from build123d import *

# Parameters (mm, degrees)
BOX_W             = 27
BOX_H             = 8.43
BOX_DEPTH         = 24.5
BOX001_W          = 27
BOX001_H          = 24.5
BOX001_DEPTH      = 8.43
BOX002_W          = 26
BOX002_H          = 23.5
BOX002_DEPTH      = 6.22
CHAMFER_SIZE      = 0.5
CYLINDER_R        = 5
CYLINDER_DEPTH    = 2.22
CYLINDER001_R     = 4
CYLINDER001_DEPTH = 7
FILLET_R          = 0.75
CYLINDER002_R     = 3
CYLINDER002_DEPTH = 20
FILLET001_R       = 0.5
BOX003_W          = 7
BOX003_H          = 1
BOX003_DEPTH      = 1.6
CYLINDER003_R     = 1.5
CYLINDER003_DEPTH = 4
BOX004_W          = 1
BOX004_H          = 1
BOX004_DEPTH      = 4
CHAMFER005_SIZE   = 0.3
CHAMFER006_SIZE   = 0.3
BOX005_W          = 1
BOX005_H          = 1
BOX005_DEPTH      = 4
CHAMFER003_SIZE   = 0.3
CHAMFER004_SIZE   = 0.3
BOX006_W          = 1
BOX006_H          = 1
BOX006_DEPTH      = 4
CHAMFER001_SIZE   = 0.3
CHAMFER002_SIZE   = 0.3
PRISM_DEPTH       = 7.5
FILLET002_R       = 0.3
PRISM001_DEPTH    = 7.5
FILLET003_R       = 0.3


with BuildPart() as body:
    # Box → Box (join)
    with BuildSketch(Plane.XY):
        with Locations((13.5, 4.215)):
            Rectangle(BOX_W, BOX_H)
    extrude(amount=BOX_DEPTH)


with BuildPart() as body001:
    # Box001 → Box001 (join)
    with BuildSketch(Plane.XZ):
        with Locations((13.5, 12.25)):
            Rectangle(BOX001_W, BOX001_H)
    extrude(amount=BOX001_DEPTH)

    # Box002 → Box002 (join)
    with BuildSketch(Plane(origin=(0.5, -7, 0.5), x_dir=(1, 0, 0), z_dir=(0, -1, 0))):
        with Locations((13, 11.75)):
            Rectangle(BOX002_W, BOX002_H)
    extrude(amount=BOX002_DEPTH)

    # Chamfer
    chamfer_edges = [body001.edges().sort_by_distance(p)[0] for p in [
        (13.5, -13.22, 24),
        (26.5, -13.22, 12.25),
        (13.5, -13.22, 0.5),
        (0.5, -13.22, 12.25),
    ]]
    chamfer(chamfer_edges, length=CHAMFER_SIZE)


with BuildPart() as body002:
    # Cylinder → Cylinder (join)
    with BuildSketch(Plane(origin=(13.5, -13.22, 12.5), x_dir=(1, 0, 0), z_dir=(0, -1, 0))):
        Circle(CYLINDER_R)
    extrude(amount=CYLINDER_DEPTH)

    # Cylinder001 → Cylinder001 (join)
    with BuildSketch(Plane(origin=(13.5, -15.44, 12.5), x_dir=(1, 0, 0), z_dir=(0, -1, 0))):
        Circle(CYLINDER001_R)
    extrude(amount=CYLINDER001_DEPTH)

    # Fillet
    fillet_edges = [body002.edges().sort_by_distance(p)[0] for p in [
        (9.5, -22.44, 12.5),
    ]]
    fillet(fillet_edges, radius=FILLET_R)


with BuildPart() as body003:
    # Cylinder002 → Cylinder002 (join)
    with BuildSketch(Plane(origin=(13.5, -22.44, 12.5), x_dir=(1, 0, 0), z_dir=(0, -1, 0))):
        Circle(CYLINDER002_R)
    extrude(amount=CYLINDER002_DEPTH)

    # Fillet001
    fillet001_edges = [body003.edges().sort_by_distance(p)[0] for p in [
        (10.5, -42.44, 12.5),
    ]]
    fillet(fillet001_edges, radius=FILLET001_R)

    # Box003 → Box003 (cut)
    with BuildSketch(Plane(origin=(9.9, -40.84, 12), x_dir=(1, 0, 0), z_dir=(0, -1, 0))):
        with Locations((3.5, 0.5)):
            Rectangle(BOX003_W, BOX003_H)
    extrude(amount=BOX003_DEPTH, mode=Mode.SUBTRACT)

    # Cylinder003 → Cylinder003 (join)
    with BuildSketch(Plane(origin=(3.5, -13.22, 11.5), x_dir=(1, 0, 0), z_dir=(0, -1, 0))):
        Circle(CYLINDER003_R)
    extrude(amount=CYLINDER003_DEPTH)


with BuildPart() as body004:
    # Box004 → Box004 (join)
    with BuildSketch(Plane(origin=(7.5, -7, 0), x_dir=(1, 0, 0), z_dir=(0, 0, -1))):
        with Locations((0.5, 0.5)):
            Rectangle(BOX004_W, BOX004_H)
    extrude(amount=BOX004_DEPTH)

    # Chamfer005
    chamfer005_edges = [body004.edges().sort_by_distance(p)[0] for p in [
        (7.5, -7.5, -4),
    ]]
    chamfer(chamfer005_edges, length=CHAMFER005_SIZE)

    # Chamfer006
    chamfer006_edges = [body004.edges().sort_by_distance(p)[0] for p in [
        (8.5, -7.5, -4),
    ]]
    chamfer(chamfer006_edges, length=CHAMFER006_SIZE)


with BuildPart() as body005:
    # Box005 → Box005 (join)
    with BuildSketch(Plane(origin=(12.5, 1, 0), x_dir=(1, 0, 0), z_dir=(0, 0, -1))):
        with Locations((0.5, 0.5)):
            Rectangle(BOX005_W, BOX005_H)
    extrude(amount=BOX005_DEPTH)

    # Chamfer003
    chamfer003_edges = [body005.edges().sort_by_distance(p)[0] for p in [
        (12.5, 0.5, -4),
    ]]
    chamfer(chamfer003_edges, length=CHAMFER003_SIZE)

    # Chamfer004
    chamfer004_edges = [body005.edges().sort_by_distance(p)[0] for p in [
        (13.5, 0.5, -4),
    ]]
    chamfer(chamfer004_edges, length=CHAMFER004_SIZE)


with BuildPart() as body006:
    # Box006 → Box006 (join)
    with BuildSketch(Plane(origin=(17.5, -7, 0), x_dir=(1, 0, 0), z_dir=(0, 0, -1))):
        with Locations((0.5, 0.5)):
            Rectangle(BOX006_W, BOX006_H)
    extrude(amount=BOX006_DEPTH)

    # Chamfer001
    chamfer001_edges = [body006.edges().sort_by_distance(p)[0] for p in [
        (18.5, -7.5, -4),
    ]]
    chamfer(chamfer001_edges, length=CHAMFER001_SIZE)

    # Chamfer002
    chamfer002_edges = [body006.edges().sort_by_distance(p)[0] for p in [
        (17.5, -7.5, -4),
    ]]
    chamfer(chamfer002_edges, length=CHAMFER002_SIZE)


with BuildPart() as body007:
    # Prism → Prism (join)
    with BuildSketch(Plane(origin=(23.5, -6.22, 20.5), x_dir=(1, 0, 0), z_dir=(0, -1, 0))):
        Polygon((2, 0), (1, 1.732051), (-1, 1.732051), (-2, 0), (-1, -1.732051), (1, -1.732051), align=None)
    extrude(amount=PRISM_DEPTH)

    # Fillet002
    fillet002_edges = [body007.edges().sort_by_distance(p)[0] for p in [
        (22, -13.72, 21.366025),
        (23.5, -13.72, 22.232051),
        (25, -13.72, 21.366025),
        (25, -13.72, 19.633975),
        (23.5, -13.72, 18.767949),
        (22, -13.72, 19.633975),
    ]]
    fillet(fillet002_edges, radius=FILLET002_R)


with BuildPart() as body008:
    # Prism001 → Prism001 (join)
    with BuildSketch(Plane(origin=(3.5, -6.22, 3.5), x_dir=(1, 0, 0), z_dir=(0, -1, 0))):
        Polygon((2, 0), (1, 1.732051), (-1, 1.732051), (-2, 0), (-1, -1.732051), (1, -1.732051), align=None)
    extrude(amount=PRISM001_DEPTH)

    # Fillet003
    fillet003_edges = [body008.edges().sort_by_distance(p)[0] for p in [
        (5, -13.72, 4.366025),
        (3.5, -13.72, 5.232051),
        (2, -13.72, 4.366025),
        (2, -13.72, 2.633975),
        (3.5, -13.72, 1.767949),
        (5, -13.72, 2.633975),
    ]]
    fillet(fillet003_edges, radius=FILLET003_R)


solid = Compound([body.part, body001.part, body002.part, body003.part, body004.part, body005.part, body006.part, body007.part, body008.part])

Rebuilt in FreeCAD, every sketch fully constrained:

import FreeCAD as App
import Part
import Sketcher
Q = App.Units.Quantity


def edges_at(feature, points):
    """Names of the edges that pass closest to the given points."""
    edges = feature.Shape.Edges
    near = lambda p: min(range(len(edges)), key=lambda i: edges[i].distToShape(Part.Vertex(*p))[0])
    return sorted({f"Edge{near(p) + 1}" for p in points})

doc = App.newDocument("Part")
body = doc.addObject("PartDesign::Body", "Body")

# Sketch on XY plane
sketch1 = doc.addObject("Sketcher::SketchObject", "Sketch")
body.addObject(sketch1)
sketch1.AttachmentSupport = (doc.XY_Plane, [""])
sketch1.MapMode = "FlatFace"
sketch1.addGeometry([
    Part.LineSegment(App.Vector(0, 8.43, 0), App.Vector(0, 0, 0)),
    Part.LineSegment(App.Vector(0, 0, 0), App.Vector(27, 0, 0)),
    Part.LineSegment(App.Vector(27, 0, 0), App.Vector(27, 8.43, 0)),
    Part.LineSegment(App.Vector(27, 8.43, 0), App.Vector(0, 8.43, 0)),
], False)
sketch1.addConstraint([
    Sketcher.Constraint("Coincident", 0, 2, 1, 1),
    Sketcher.Constraint("Coincident", 1, 2, 2, 1),
    Sketcher.Constraint("Coincident", 2, 2, 3, 1),
    Sketcher.Constraint("Coincident", 3, 2, 0, 1),
    Sketcher.Constraint("Vertical", 0),
    Sketcher.Constraint("Horizontal", 1),
    Sketcher.Constraint("Vertical", 2),
    Sketcher.Constraint("Horizontal", 3),
    Sketcher.Constraint("Coincident", 0, 2, -1, 1),
    Sketcher.Constraint("DistanceX", 1, 1, 1, 2, 27.0),
    Sketcher.Constraint("DistanceY", 0, 2, 0, 1, 8.43),
])
pad1 = doc.addObject("PartDesign::Pad", "Pad")
body.addObject(pad1)
pad1.Profile = sketch1
pad1.Length = 24.5
body2 = doc.addObject("PartDesign::Body", "Body001")

# Sketch on XZ plane
sketch2 = doc.addObject("Sketcher::SketchObject", "Sketch001")
body2.addObject(sketch2)
sketch2.AttachmentSupport = (doc.getObject("XZ_Plane001"), [""])
sketch2.MapMode = "FlatFace"
sketch2.addGeometry([
    Part.LineSegment(App.Vector(0, 24.5, 0), App.Vector(0, 0, 0)),
    Part.LineSegment(App.Vector(0, 0, 0), App.Vector(27, 0, 0)),
    Part.LineSegment(App.Vector(27, 0, 0), App.Vector(27, 24.5, 0)),
    Part.LineSegment(App.Vector(27, 24.5, 0), App.Vector(0, 24.5, 0)),
], False)
sketch2.addConstraint([
    Sketcher.Constraint("Coincident", 0, 2, 1, 1),
    Sketcher.Constraint("Coincident", 1, 2, 2, 1),
    Sketcher.Constraint("Coincident", 2, 2, 3, 1),
    Sketcher.Constraint("Coincident", 3, 2, 0, 1),
    Sketcher.Constraint("Vertical", 0),
    Sketcher.Constraint("Horizontal", 1),
    Sketcher.Constraint("Vertical", 2),
    Sketcher.Constraint("Horizontal", 3),
    Sketcher.Constraint("Coincident", 0, 2, -1, 1),
    Sketcher.Constraint("DistanceX", 1, 1, 1, 2, 27.0),
    Sketcher.Constraint("DistanceY", 0, 2, 0, 1, 24.5),
])
pad2 = doc.addObject("PartDesign::Pad", "Pad001")
body2.addObject(pad2)
pad2.Profile = sketch2
pad2.Length = 8.43

# Sketch on XZ plane
sketch3 = doc.addObject("Sketcher::SketchObject", "Sketch002")
body2.addObject(sketch3)
sketch3.AttachmentSupport = (doc.getObject("XZ_Plane001"), [""])
sketch3.MapMode = "FlatFace"
sketch3.AttachmentOffset = App.Placement(App.Vector(0, 0, 7), App.Rotation())
sketch3.addGeometry([
    Part.LineSegment(App.Vector(0.5, 24, 0), App.Vector(0.5, 0.5, 0)),
    Part.LineSegment(App.Vector(0.5, 0.5, 0), App.Vector(26.5, 0.5, 0)),
    Part.LineSegment(App.Vector(26.5, 0.5, 0), App.Vector(26.5, 24, 0)),
    Part.LineSegment(App.Vector(26.5, 24, 0), App.Vector(0.5, 24, 0)),
], False)
sketch3.addConstraint([
    Sketcher.Constraint("Coincident", 0, 2, 1, 1),
    Sketcher.Constraint("Coincident", 1, 2, 2, 1),
    Sketcher.Constraint("Coincident", 2, 2, 3, 1),
    Sketcher.Constraint("Coincident", 3, 2, 0, 1),
    Sketcher.Constraint("Vertical", 0),
    Sketcher.Constraint("Horizontal", 1),
    Sketcher.Constraint("Vertical", 2),
    Sketcher.Constraint("Horizontal", 3),
    Sketcher.Constraint("DistanceX", 1, 1, 1, 2, 26.0),
    Sketcher.Constraint("DistanceY", 0, 2, 0, 1, 23.5),
    Sketcher.Constraint("DistanceY", -1, 1, 2, 2, 24.0),
    Sketcher.Constraint("DistanceX", -1, 1, 0, 2, 0.5),
])
pad3 = doc.addObject("PartDesign::Pad", "Pad002")
body2.addObject(pad3)
pad3.Profile = sketch3
pad3.Length = 6.22
doc.recompute()

chamfer = doc.addObject("PartDesign::Chamfer", "Chamfer")
body2.addObject(chamfer)
chamfer.Base = (pad3, edges_at(pad3, [
    (13.5, -13.22, 24),
    (26.5, -13.22, 12.25),
    (13.5, -13.22, 0.5),
    (0.5, -13.22, 12.25),
]))
chamfer.Size = 0.5
body3 = doc.addObject("PartDesign::Body", "Body002")

# Sketch on XZ plane
sketch4 = doc.addObject("Sketcher::SketchObject", "Sketch003")
body3.addObject(sketch4)
sketch4.AttachmentSupport = (doc.getObject("XZ_Plane002"), [""])
sketch4.MapMode = "FlatFace"
sketch4.AttachmentOffset = App.Placement(App.Vector(0, 0, 13.22), App.Rotation())
sketch4.addGeometry(Part.Circle(App.Vector(13.5, 12.5, 0), App.Vector(0, 0, 1), 5), False)
sketch4.addConstraint([
    Sketcher.Constraint("Diameter", 0, 10.0),
    Sketcher.Constraint("DistanceX", -1, 1, 0, 3, 13.5),
    Sketcher.Constraint("DistanceY", -1, 1, 0, 3, 12.5),
])
pad4 = doc.addObject("PartDesign::Pad", "Pad003")
body3.addObject(pad4)
pad4.Profile = sketch4
pad4.Length = 2.22

# Sketch on XZ plane
sketch5 = doc.addObject("Sketcher::SketchObject", "Sketch004")
body3.addObject(sketch5)
sketch5.AttachmentSupport = (doc.getObject("XZ_Plane002"), [""])
sketch5.MapMode = "FlatFace"
sketch5.AttachmentOffset = App.Placement(App.Vector(0, 0, 15.44), App.Rotation())
sketch5.addGeometry(Part.Circle(App.Vector(13.5, 12.5, 0), App.Vector(0, 0, 1), 4), False)
sketch5.addConstraint([
    Sketcher.Constraint("Diameter", 0, 8.0),
    Sketcher.Constraint("DistanceX", -1, 1, 0, 3, 13.5),
    Sketcher.Constraint("DistanceY", -1, 1, 0, 3, 12.5),
])
pad5 = doc.addObject("PartDesign::Pad", "Pad004")
body3.addObject(pad5)
pad5.Profile = sketch5
pad5.Length = 7
doc.recompute()

fillet = doc.addObject("PartDesign::Fillet", "Fillet")
body3.addObject(fillet)
fillet.Base = (pad5, edges_at(pad5, [(9.5, -22.44, 12.5)]))
fillet.Radius = 0.75
body4 = doc.addObject("PartDesign::Body", "Body003")
body4.AllowCompound = True

# Sketch on XZ plane
sketch6 = doc.addObject("Sketcher::SketchObject", "Sketch005")
body4.addObject(sketch6)
sketch6.AttachmentSupport = (doc.getObject("XZ_Plane003"), [""])
sketch6.MapMode = "FlatFace"
sketch6.AttachmentOffset = App.Placement(App.Vector(0, 0, 22.44), App.Rotation())
sketch6.addGeometry(Part.Circle(App.Vector(13.5, 12.5, 0), App.Vector(0, 0, 1), 3), False)
sketch6.addConstraint([
    Sketcher.Constraint("Diameter", 0, 6.0),
    Sketcher.Constraint("DistanceX", -1, 1, 0, 3, 13.5),
    Sketcher.Constraint("DistanceY", -1, 1, 0, 3, 12.5),
])
pad6 = doc.addObject("PartDesign::Pad", "Pad005")
body4.addObject(pad6)
pad6.Profile = sketch6
pad6.Length = 20
doc.recompute()

fillet2 = doc.addObject("PartDesign::Fillet", "Fillet001")
body4.addObject(fillet2)
fillet2.Base = (pad6, edges_at(pad6, [(10.5, -42.44, 12.5)]))
fillet2.Radius = 0.5

# Sketch on XZ plane
sketch7 = doc.addObject("Sketcher::SketchObject", "Sketch006")
body4.addObject(sketch7)
sketch7.AttachmentSupport = (doc.getObject("XZ_Plane003"), [""])
sketch7.MapMode = "FlatFace"
sketch7.AttachmentOffset = App.Placement(App.Vector(0, 0, 40.84), App.Rotation())
sketch7.addGeometry([
    Part.LineSegment(App.Vector(9.9, 13, 0), App.Vector(9.9, 12, 0)),
    Part.LineSegment(App.Vector(9.9, 12, 0), App.Vector(16.9, 12, 0)),
    Part.LineSegment(App.Vector(16.9, 12, 0), App.Vector(16.9, 13, 0)),
    Part.LineSegment(App.Vector(16.9, 13, 0), App.Vector(9.9, 13, 0)),
], False)
sketch7.addConstraint([
    Sketcher.Constraint("Coincident", 0, 2, 1, 1),
    Sketcher.Constraint("Coincident", 1, 2, 2, 1),
    Sketcher.Constraint("Coincident", 2, 2, 3, 1),
    Sketcher.Constraint("Coincident", 3, 2, 0, 1),
    Sketcher.Constraint("Vertical", 0),
    Sketcher.Constraint("Horizontal", 1),
    Sketcher.Constraint("Vertical", 2),
    Sketcher.Constraint("Horizontal", 3),
    Sketcher.Constraint("DistanceX", 1, 1, 1, 2, 7.0),
    Sketcher.Constraint("DistanceY", 0, 2, 0, 1, 1.0),
    Sketcher.Constraint("DistanceY", -1, 1, 0, 2, 12.0),
    Sketcher.Constraint("DistanceX", -1, 1, 0, 2, 9.9),
])
pocket1 = doc.addObject("PartDesign::Pocket", "Pocket")
body4.addObject(pocket1)
pocket1.Profile = sketch7
pocket1.Length = 1.6
pocket1.Reversed = True

# Sketch on XZ plane
sketch8 = doc.addObject("Sketcher::SketchObject", "Sketch007")
body4.addObject(sketch8)
sketch8.AttachmentSupport = (doc.getObject("XZ_Plane003"), [""])
sketch8.MapMode = "FlatFace"
sketch8.AttachmentOffset = App.Placement(App.Vector(0, 0, 13.22), App.Rotation())
sketch8.addGeometry(Part.Circle(App.Vector(3.5, 11.5, 0), App.Vector(0, 0, 1), 1.5), False)
sketch8.addConstraint([
    Sketcher.Constraint("Diameter", 0, 3.0),
    Sketcher.Constraint("DistanceX", -1, 1, 0, 3, 3.5),
    Sketcher.Constraint("DistanceY", -1, 1, 0, 3, 11.5),
])
pad7 = doc.addObject("PartDesign::Pad", "Pad006")
body4.addObject(pad7)
pad7.Profile = sketch8
pad7.Length = 4
body5 = doc.addObject("PartDesign::Body", "Body004")

# Sketch on XY plane
sketch9 = doc.addObject("Sketcher::SketchObject", "Sketch008")
body5.addObject(sketch9)
sketch9.AttachmentSupport = (doc.getObject("XY_Plane004"), [""])
sketch9.MapMode = "FlatFace"
sketch9.addGeometry([
    Part.LineSegment(App.Vector(7.5, -8, 0), App.Vector(7.5, -7, 0)),
    Part.LineSegment(App.Vector(7.5, -7, 0), App.Vector(8.5, -7, 0)),
    Part.LineSegment(App.Vector(8.5, -7, 0), App.Vector(8.5, -8, 0)),
    Part.LineSegment(App.Vector(8.5, -8, 0), App.Vector(7.5, -8, 0)),
], False)
sketch9.addConstraint([
    Sketcher.Constraint("Coincident", 0, 2, 1, 1),
    Sketcher.Constraint("Coincident", 1, 2, 2, 1),
    Sketcher.Constraint("Coincident", 2, 2, 3, 1),
    Sketcher.Constraint("Coincident", 3, 2, 0, 1),
    Sketcher.Constraint("Vertical", 0),
    Sketcher.Constraint("Horizontal", 1),
    Sketcher.Constraint("Vertical", 2),
    Sketcher.Constraint("Horizontal", 3),
    Sketcher.Constraint("Equal", 3, 0),
    Sketcher.Constraint("DistanceX", 1, 1, 1, 2, 1.0),
    Sketcher.Constraint("DistanceY", 0, 2, -1, 1, 7.0),
    Sketcher.Constraint("DistanceX", -1, 1, 0, 2, 7.5),
])
pad8 = doc.addObject("PartDesign::Pad", "Pad007")
body5.addObject(pad8)
pad8.Profile = sketch9
pad8.Length = 4
pad8.Reversed = True
doc.recompute()

chamfer2 = doc.addObject("PartDesign::Chamfer", "Chamfer001")
body5.addObject(chamfer2)
chamfer2.Base = (pad8, edges_at(pad8, [(7.5, -7.5, -4)]))
chamfer2.Size = 0.3
doc.recompute()

chamfer3 = doc.addObject("PartDesign::Chamfer", "Chamfer002")
body5.addObject(chamfer3)
chamfer3.Base = (chamfer2, edges_at(chamfer2, [(8.5, -7.5, -4)]))
chamfer3.Size = 0.3
body6 = doc.addObject("PartDesign::Body", "Body005")

# Sketch on XY plane
sketch10 = doc.addObject("Sketcher::SketchObject", "Sketch009")
body6.addObject(sketch10)
sketch10.AttachmentSupport = (doc.getObject("XY_Plane005"), [""])
sketch10.MapMode = "FlatFace"
sketch10.addGeometry([
    Part.LineSegment(App.Vector(12.5, 0, 0), App.Vector(12.5, 1, 0)),
    Part.LineSegment(App.Vector(12.5, 1, 0), App.Vector(13.5, 1, 0)),
    Part.LineSegment(App.Vector(13.5, 1, 0), App.Vector(13.5, 0, 0)),
    Part.LineSegment(App.Vector(13.5, 0, 0), App.Vector(12.5, 0, 0)),
], False)
sketch10.addConstraint([
    Sketcher.Constraint("Coincident", 0, 2, 1, 1),
    Sketcher.Constraint("Coincident", 1, 2, 2, 1),
    Sketcher.Constraint("Coincident", 2, 2, 3, 1),
    Sketcher.Constraint("Coincident", 3, 2, 0, 1),
    Sketcher.Constraint("Vertical", 0),
    Sketcher.Constraint("Horizontal", 1),
    Sketcher.Constraint("Vertical", 2),
    Sketcher.Constraint("Horizontal", 3),
    Sketcher.Constraint("PointOnObject", 2, 2, -1),
    Sketcher.Constraint("Equal", 3, 0),
    Sketcher.Constraint("DistanceX", 1, 1, 1, 2, 1.0),
    Sketcher.Constraint("DistanceX", -1, 1, 0, 2, 12.5),
])
pad9 = doc.addObject("PartDesign::Pad", "Pad008")
body6.addObject(pad9)
pad9.Profile = sketch10
pad9.Length = 4
pad9.Reversed = True
doc.recompute()

chamfer4 = doc.addObject("PartDesign::Chamfer", "Chamfer003")
body6.addObject(chamfer4)
chamfer4.Base = (pad9, edges_at(pad9, [(12.5, 0.5, -4)]))
chamfer4.Size = 0.3
doc.recompute()

chamfer5 = doc.addObject("PartDesign::Chamfer", "Chamfer004")
body6.addObject(chamfer5)
chamfer5.Base = (chamfer4, edges_at(chamfer4, [(13.5, 0.5, -4)]))
chamfer5.Size = 0.3
body7 = doc.addObject("PartDesign::Body", "Body006")

# Sketch on XY plane
sketch11 = doc.addObject("Sketcher::SketchObject", "Sketch010")
body7.addObject(sketch11)
sketch11.AttachmentSupport = (doc.getObject("XY_Plane006"), [""])
sketch11.MapMode = "FlatFace"
sketch11.addGeometry([
    Part.LineSegment(App.Vector(17.5, -8, 0), App.Vector(17.5, -7, 0)),
    Part.LineSegment(App.Vector(17.5, -7, 0), App.Vector(18.5, -7, 0)),
    Part.LineSegment(App.Vector(18.5, -7, 0), App.Vector(18.5, -8, 0)),
    Part.LineSegment(App.Vector(18.5, -8, 0), App.Vector(17.5, -8, 0)),
], False)
sketch11.addConstraint([
    Sketcher.Constraint("Coincident", 0, 2, 1, 1),
    Sketcher.Constraint("Coincident", 1, 2, 2, 1),
    Sketcher.Constraint("Coincident", 2, 2, 3, 1),
    Sketcher.Constraint("Coincident", 3, 2, 0, 1),
    Sketcher.Constraint("Vertical", 0),
    Sketcher.Constraint("Horizontal", 1),
    Sketcher.Constraint("Vertical", 2),
    Sketcher.Constraint("Horizontal", 3),
    Sketcher.Constraint("Equal", 3, 0),
    Sketcher.Constraint("DistanceX", 1, 1, 1, 2, 1.0),
    Sketcher.Constraint("DistanceY", 0, 2, -1, 1, 7.0),
    Sketcher.Constraint("DistanceX", -1, 1, 0, 2, 17.5),
])
pad10 = doc.addObject("PartDesign::Pad", "Pad009")
body7.addObject(pad10)
pad10.Profile = sketch11
pad10.Length = 4
pad10.Reversed = True
doc.recompute()

chamfer6 = doc.addObject("PartDesign::Chamfer", "Chamfer005")
body7.addObject(chamfer6)
chamfer6.Base = (pad10, edges_at(pad10, [(18.5, -7.5, -4)]))
chamfer6.Size = 0.3
doc.recompute()

chamfer7 = doc.addObject("PartDesign::Chamfer", "Chamfer006")
body7.addObject(chamfer7)
chamfer7.Base = (chamfer6, edges_at(chamfer6, [(17.5, -7.5, -4)]))
chamfer7.Size = 0.3
body8 = doc.addObject("PartDesign::Body", "Body007")

# Sketch on XZ plane
sketch12 = doc.addObject("Sketcher::SketchObject", "Sketch011")
body8.addObject(sketch12)
sketch12.AttachmentSupport = (doc.getObject("XZ_Plane007"), [""])
sketch12.MapMode = "FlatFace"
sketch12.AttachmentOffset = App.Placement(App.Vector(0, 0, 6.22), App.Rotation())
sketch12.addGeometry([
    Part.LineSegment(App.Vector(25.5, 20.5, 0), App.Vector(24.5, 22.232051, 0)),  # 0
    Part.LineSegment(App.Vector(24.5, 22.232051, 0), App.Vector(22.5, 22.232051, 0)),  # 1
    Part.LineSegment(App.Vector(22.5, 22.232051, 0), App.Vector(21.5, 20.5, 0)),  # 2
    Part.LineSegment(App.Vector(21.5, 20.5, 0), App.Vector(22.5, 18.767949, 0)),  # 3
    Part.LineSegment(App.Vector(22.5, 18.767949, 0), App.Vector(24.5, 18.767949, 0)),  # 4
    Part.LineSegment(App.Vector(24.5, 18.767949, 0), App.Vector(25.5, 20.5, 0)),  # 5
], False)
sketch12.addConstraint([
    Sketcher.Constraint("Coincident", 0, 2, 1, 1),
    Sketcher.Constraint("Coincident", 1, 2, 2, 1),
    Sketcher.Constraint("Coincident", 2, 2, 3, 1),
    Sketcher.Constraint("Coincident", 3, 2, 4, 1),
    Sketcher.Constraint("Coincident", 4, 2, 5, 1),
    Sketcher.Constraint("Coincident", 5, 2, 0, 1),
    Sketcher.Constraint("Horizontal", 1),
    Sketcher.Constraint("Horizontal", 4),
    Sketcher.Constraint("Parallel", 0, 3),
    Sketcher.Constraint("Parallel", 2, 5),
    Sketcher.Constraint("Horizontal", 2, 2, 5, 2),
    Sketcher.Constraint("Vertical", 1, 2, 3, 2),
    Sketcher.Constraint("Vertical", 0, 2, 4, 2),
    Sketcher.Constraint("DistanceX", 1, 2, 1, 1, 2.0),
    Sketcher.Constraint("Angle", 0, Q("119.999997 deg")),
    Sketcher.Constraint("Distance", 0, 2.0),
    Sketcher.Constraint("DistanceX", -1, 1, 0, 2, 24.5),
    Sketcher.Constraint("DistanceY", -1, 1, 2, 2, 20.5),
])
pad11 = doc.addObject("PartDesign::Pad", "Pad010")
body8.addObject(pad11)
pad11.Profile = sketch12
pad11.Length = 7.5
doc.recompute()

fillet3 = doc.addObject("PartDesign::Fillet", "Fillet002")
body8.addObject(fillet3)
fillet3.Base = (pad11, edges_at(pad11, [
    (22, -13.72, 21.366),
    (23.5, -13.72, 22.232),
    (25, -13.72, 21.366),
    (25, -13.72, 19.634),
    (23.5, -13.72, 18.768),
    (22, -13.72, 19.634),
]))
fillet3.Radius = 0.3
body9 = doc.addObject("PartDesign::Body", "Body008")

# Sketch on XZ plane
sketch13 = doc.addObject("Sketcher::SketchObject", "Sketch012")
body9.addObject(sketch13)
sketch13.AttachmentSupport = (doc.getObject("XZ_Plane008"), [""])
sketch13.MapMode = "FlatFace"
sketch13.AttachmentOffset = App.Placement(App.Vector(0, 0, 6.22), App.Rotation())
sketch13.addGeometry([
    Part.LineSegment(App.Vector(5.5, 3.5, 0), App.Vector(4.5, 5.232051, 0)),  # 0
    Part.LineSegment(App.Vector(4.5, 5.232051, 0), App.Vector(2.5, 5.232051, 0)),  # 1
    Part.LineSegment(App.Vector(2.5, 5.232051, 0), App.Vector(1.5, 3.5, 0)),  # 2
    Part.LineSegment(App.Vector(1.5, 3.5, 0), App.Vector(2.5, 1.767949, 0)),  # 3
    Part.LineSegment(App.Vector(2.5, 1.767949, 0), App.Vector(4.5, 1.767949, 0)),  # 4
    Part.LineSegment(App.Vector(4.5, 1.767949, 0), App.Vector(5.5, 3.5, 0)),  # 5
], False)
sketch13.addConstraint([
    Sketcher.Constraint("Coincident", 0, 2, 1, 1),
    Sketcher.Constraint("Coincident", 1, 2, 2, 1),
    Sketcher.Constraint("Coincident", 2, 2, 3, 1),
    Sketcher.Constraint("Coincident", 3, 2, 4, 1),
    Sketcher.Constraint("Coincident", 4, 2, 5, 1),
    Sketcher.Constraint("Coincident", 5, 2, 0, 1),
    Sketcher.Constraint("Horizontal", 1),
    Sketcher.Constraint("Horizontal", 4),
    Sketcher.Constraint("Parallel", 0, 3),
    Sketcher.Constraint("Parallel", 2, 5),
    Sketcher.Constraint("Horizontal", 2, 2, 5, 2),
    Sketcher.Constraint("Vertical", 1, 2, 3, 2),
    Sketcher.Constraint("Vertical", 0, 2, 4, 2),
    Sketcher.Constraint("DistanceX", 1, 2, 1, 1, 2.0),
    Sketcher.Constraint("Angle", 0, Q("119.999997 deg")),
    Sketcher.Constraint("Distance", 0, 2.0),
    Sketcher.Constraint("DistanceX", -1, 1, 0, 2, 4.5),
    Sketcher.Constraint("DistanceY", -1, 1, 2, 2, 3.5),
])
pad12 = doc.addObject("PartDesign::Pad", "Pad011")
body9.addObject(pad12)
pad12.Profile = sketch13
pad12.Length = 7.5
doc.recompute()

fillet4 = doc.addObject("PartDesign::Fillet", "Fillet003")
body9.addObject(fillet4)
fillet4.Base = (pad12, edges_at(pad12, [
    (5, -13.72, 4.366),
    (3.5, -13.72, 5.232),
    (2, -13.72, 4.366),
    (2, -13.72, 2.634),
    (3.5, -13.72, 1.768),
    (5, -13.72, 2.634),
]))
fillet4.Radius = 0.3

doc.recompute()
